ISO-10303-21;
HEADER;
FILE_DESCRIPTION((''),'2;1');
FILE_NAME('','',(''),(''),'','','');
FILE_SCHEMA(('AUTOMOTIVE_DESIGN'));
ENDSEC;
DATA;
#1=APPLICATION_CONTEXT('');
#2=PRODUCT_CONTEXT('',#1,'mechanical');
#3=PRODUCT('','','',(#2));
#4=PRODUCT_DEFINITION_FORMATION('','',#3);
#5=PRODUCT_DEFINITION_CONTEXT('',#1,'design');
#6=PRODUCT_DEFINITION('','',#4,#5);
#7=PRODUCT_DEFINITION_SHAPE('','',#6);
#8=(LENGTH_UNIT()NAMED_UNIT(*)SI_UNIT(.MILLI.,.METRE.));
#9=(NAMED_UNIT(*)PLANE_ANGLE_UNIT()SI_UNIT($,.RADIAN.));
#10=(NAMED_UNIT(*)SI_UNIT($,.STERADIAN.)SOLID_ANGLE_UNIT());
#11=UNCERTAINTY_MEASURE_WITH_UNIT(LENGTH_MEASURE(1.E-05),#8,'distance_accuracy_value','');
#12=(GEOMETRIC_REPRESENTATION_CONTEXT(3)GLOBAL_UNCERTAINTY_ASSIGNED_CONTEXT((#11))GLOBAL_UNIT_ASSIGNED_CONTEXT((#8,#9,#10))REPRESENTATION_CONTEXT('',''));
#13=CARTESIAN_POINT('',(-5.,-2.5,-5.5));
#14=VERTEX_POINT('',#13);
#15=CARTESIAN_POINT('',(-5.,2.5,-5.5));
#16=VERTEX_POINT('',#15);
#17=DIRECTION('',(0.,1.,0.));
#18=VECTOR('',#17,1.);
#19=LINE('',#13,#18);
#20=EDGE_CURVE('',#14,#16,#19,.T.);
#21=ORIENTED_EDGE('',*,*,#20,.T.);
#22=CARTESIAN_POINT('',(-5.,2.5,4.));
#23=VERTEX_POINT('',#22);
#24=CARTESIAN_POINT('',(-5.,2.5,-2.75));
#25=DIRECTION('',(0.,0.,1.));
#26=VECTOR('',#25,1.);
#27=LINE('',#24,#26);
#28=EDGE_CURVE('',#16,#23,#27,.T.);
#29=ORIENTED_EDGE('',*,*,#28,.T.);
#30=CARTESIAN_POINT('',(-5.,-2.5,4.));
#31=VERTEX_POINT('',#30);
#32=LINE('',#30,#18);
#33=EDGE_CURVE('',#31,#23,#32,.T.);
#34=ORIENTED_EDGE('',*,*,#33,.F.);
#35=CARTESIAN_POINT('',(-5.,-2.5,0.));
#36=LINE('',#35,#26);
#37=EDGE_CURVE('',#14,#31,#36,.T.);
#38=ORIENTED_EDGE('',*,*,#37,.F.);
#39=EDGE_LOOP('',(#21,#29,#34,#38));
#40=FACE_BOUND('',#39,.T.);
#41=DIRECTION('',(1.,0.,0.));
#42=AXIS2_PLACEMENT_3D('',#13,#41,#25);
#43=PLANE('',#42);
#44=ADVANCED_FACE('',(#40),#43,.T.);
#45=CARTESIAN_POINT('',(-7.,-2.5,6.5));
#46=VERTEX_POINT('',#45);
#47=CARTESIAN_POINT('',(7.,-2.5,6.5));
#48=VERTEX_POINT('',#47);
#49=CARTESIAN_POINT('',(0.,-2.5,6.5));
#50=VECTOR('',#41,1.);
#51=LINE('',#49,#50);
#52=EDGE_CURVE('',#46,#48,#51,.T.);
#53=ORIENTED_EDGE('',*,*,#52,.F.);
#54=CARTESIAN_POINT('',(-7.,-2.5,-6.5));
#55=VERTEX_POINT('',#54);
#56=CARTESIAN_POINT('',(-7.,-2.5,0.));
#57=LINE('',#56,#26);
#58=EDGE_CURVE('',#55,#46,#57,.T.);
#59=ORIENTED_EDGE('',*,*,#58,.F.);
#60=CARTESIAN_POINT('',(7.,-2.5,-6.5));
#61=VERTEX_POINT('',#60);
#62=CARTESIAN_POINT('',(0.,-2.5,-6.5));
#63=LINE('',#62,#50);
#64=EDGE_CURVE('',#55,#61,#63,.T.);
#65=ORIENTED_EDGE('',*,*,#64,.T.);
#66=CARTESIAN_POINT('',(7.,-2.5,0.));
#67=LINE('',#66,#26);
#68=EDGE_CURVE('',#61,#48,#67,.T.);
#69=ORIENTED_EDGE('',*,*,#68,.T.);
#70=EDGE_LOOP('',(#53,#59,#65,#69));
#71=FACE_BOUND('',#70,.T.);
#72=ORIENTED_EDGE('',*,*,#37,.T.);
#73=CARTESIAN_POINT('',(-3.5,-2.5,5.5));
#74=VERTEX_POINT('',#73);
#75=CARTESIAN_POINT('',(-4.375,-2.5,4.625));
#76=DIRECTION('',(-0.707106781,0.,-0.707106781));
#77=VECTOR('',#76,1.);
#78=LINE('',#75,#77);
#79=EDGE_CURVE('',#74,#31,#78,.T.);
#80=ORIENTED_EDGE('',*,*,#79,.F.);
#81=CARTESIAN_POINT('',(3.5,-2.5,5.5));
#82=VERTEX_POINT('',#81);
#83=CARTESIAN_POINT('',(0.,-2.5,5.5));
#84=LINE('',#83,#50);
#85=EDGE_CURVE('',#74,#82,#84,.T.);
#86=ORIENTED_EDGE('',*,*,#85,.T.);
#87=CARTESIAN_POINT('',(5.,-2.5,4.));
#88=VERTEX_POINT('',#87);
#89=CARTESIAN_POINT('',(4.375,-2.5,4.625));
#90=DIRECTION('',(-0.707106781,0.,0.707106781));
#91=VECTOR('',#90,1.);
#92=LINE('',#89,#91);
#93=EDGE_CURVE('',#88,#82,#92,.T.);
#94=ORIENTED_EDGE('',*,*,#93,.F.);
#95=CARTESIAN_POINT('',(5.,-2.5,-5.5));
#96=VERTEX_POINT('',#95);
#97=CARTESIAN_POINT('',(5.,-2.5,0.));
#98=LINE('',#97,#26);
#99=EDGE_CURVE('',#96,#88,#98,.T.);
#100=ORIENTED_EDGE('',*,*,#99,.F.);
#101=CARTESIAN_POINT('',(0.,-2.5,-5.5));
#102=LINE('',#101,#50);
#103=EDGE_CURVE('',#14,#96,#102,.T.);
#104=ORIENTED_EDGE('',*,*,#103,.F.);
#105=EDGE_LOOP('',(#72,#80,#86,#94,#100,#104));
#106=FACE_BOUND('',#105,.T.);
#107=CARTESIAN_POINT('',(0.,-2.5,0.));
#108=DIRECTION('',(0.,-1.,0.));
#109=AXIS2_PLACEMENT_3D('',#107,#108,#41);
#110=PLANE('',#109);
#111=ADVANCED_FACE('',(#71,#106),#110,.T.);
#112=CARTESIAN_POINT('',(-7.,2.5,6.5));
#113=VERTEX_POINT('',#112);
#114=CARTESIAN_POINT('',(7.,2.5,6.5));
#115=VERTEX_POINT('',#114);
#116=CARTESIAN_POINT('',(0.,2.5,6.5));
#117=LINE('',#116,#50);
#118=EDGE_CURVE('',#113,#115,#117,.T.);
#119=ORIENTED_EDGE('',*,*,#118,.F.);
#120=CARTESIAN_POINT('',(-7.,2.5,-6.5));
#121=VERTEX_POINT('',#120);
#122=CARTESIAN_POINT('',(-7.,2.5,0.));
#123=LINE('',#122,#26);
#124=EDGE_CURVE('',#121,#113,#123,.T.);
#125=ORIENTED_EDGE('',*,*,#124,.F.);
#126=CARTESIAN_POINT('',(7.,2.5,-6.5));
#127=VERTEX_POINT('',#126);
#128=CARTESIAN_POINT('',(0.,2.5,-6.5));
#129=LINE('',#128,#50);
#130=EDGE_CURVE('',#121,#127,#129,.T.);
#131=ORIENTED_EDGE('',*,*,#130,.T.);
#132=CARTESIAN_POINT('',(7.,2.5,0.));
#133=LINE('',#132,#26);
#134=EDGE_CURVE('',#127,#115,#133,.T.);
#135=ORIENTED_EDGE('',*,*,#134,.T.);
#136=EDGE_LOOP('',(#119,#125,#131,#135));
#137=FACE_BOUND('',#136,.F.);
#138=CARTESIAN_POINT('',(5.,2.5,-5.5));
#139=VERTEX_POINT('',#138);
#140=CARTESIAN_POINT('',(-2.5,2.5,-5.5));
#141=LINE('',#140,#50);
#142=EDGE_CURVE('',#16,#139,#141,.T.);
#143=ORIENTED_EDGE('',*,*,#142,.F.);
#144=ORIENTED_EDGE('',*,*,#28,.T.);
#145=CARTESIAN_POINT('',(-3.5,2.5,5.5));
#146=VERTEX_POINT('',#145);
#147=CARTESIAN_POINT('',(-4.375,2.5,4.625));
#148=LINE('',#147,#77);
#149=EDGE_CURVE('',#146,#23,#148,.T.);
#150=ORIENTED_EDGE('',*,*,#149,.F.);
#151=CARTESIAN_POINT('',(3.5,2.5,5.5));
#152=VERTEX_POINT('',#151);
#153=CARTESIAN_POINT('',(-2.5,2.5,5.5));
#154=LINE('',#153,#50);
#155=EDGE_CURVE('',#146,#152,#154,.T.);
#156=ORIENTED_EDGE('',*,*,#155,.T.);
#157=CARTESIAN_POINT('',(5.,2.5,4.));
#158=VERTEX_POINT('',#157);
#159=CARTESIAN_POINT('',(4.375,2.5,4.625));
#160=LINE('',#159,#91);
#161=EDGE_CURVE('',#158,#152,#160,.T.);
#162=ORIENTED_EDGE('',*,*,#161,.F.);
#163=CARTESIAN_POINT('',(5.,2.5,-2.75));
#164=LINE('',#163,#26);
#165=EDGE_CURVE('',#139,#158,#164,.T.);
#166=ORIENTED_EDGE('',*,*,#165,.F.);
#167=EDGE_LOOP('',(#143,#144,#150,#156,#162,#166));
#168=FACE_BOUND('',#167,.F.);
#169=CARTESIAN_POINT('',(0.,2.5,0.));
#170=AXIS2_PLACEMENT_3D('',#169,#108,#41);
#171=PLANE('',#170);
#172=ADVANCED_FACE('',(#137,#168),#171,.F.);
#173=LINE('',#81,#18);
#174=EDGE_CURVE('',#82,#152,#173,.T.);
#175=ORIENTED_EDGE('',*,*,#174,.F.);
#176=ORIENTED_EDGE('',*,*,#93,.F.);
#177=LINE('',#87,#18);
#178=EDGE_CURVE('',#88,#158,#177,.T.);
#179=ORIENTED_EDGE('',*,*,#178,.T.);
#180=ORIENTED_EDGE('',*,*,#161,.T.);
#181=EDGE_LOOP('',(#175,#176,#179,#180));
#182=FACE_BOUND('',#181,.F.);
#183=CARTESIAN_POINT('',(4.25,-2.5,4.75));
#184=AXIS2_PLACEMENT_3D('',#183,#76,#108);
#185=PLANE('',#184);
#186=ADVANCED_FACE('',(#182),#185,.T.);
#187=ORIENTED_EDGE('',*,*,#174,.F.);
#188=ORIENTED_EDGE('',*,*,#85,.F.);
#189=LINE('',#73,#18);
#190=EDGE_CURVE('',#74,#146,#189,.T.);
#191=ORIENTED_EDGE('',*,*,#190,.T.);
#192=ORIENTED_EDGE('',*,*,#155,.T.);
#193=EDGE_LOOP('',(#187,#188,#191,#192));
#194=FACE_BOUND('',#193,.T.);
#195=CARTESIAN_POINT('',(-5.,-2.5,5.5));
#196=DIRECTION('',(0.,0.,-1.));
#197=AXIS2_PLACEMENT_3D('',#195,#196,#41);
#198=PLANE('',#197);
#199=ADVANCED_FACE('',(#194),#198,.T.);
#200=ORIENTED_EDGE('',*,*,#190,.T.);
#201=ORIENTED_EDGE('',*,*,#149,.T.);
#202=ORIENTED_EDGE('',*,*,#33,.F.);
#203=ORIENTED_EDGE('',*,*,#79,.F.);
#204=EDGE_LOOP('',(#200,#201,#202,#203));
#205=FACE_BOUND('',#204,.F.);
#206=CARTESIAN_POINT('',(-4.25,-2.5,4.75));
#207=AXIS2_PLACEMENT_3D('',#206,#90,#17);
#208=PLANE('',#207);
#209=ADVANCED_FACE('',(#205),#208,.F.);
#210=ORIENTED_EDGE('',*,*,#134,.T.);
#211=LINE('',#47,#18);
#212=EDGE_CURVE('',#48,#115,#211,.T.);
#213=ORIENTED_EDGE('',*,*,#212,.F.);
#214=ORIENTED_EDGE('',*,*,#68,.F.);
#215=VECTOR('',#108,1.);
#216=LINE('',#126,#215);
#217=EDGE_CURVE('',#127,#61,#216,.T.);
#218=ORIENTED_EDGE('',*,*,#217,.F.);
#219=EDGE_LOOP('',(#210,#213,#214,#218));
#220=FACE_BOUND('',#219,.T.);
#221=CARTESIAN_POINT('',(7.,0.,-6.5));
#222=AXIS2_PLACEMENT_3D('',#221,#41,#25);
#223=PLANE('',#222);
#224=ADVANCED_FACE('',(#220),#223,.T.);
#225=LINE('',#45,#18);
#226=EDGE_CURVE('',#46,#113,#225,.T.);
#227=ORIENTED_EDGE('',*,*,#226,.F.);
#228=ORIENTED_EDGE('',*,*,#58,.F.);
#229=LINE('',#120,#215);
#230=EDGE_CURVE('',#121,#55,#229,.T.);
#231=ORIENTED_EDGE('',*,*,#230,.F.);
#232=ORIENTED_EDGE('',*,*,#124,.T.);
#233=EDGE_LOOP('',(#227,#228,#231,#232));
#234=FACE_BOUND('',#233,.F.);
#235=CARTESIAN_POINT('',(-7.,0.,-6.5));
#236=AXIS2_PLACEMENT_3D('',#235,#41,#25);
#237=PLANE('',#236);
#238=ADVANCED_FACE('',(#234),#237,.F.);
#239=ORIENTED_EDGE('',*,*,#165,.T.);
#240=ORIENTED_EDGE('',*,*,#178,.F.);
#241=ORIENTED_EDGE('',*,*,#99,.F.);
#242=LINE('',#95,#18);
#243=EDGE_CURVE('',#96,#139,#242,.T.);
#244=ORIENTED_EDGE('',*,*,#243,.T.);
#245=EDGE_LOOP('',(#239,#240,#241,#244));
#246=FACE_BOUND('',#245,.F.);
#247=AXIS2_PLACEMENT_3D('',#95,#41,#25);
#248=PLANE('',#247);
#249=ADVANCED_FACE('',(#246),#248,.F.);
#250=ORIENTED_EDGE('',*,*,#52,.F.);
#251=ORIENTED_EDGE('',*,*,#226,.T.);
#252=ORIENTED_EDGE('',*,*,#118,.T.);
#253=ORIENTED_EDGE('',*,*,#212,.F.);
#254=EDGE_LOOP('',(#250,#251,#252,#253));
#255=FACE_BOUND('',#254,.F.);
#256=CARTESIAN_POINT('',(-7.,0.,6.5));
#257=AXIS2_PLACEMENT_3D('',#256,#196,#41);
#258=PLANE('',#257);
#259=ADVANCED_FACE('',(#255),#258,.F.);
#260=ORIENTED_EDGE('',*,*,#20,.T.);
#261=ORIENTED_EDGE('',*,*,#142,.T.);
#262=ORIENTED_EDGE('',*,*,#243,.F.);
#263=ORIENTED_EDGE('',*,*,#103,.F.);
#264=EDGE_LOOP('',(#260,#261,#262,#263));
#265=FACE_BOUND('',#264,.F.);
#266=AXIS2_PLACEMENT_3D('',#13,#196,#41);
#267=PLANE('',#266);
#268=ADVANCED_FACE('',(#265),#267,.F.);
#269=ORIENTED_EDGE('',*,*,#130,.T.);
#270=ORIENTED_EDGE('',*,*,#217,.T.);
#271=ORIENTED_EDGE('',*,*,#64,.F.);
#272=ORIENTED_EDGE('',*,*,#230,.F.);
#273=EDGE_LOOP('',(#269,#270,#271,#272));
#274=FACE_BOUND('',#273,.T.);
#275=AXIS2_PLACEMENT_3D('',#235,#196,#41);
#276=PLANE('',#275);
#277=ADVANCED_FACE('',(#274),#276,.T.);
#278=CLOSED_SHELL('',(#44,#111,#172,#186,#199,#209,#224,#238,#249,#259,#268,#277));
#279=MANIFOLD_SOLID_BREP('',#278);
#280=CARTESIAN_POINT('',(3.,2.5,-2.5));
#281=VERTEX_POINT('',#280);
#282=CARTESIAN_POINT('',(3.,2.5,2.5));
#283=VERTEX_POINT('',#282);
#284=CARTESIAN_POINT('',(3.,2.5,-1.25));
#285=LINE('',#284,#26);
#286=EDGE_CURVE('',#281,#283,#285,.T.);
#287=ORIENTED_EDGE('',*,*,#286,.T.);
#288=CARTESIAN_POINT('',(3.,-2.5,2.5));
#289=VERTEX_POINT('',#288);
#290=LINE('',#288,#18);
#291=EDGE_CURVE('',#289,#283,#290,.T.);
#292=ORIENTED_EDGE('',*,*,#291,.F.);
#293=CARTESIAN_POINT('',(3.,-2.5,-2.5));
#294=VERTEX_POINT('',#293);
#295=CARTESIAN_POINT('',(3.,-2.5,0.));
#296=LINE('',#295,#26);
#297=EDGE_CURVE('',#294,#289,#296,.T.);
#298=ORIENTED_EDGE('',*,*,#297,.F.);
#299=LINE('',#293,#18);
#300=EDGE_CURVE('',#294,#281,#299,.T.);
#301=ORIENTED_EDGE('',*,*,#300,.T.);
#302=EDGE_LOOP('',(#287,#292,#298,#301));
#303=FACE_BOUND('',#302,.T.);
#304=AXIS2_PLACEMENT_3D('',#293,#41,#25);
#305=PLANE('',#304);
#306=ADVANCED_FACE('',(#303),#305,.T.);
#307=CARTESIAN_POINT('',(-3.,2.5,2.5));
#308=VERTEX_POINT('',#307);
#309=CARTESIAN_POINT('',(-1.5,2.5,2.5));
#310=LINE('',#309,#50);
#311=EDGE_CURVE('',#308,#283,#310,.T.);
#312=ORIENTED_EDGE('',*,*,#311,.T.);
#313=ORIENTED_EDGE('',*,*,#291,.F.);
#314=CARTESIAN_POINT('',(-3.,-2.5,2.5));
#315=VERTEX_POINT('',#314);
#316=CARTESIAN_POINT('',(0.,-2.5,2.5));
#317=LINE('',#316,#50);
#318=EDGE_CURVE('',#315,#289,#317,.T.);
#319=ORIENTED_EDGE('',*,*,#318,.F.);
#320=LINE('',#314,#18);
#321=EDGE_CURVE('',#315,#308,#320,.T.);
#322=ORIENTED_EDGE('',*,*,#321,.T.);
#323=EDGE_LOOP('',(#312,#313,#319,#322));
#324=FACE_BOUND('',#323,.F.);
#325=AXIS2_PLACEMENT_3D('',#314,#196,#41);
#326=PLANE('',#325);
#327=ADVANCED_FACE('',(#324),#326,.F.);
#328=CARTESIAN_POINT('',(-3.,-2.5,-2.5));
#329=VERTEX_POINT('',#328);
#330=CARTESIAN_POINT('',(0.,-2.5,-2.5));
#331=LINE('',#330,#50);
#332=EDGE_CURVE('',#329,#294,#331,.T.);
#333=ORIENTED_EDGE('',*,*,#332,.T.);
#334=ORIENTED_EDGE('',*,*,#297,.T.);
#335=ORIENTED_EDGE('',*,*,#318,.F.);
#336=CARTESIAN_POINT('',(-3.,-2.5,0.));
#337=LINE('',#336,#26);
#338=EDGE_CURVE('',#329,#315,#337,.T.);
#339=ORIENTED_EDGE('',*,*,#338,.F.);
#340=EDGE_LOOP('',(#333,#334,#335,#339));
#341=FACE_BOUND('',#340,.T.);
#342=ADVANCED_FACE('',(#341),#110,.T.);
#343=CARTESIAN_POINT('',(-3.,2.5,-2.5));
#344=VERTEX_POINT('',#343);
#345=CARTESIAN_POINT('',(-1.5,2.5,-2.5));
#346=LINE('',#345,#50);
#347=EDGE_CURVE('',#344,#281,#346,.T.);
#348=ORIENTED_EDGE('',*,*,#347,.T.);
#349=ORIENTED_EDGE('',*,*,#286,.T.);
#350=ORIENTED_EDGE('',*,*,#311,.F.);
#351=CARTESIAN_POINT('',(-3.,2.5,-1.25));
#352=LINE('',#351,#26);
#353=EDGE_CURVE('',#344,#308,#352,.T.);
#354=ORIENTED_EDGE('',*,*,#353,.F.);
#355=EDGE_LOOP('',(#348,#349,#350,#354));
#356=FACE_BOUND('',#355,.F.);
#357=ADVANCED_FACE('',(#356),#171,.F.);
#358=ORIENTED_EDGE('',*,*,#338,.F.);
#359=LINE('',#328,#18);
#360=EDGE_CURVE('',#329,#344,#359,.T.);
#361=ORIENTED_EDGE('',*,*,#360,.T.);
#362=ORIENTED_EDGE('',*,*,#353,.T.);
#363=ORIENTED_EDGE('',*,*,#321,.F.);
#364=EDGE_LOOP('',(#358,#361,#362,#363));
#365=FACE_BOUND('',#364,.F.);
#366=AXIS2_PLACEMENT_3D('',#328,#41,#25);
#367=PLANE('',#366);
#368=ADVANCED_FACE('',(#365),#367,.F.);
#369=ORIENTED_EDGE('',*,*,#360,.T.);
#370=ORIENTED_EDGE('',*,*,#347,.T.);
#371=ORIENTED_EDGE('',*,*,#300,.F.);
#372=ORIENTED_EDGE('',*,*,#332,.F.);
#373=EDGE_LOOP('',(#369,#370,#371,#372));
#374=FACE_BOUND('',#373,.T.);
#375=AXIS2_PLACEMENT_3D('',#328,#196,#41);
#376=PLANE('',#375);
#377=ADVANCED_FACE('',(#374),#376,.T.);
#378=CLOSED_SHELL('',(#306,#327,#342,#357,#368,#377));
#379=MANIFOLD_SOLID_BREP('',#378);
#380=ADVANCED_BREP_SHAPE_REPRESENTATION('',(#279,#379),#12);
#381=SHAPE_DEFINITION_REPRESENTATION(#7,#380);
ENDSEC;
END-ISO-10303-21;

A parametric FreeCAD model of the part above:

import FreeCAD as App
import Part
import Sketcher

V = App.Vector
Q = App.Units.Quantity


def edges_at(feature, points):
    """Names of the edges that pass closest to the given points."""
    edges = feature.Shape.Edges
    near = lambda p: min(range(len(edges)), key=lambda i: edges[i].distToShape(Part.Vertex(*p))[0])
    return sorted({f"Edge{near(p) + 1}" for p in points})


def add_polygon(sketch, points):
    """Adds a closed chain of lines whose ends are joined by coincident constraints."""
    first, n = sketch.GeometryCount, len(points)
    for a, b in zip(points, points[1:] + points[:1]):
        sketch.addGeometry(Part.LineSegment(App.Vector(*a, 0), App.Vector(*b, 0)), False)
    for i in range(n):
        sketch.addConstraint(Sketcher.Constraint("Coincident", first + i, 2, first + (i + 1) % n, 1))

doc = App.newDocument("Part")
params = doc.addObject("Spreadsheet::Sheet", "Params")
for row, (alias, value) in enumerate([
    ("sketch1_width", "14 mm"),
    ("sketch1_height", "13 mm"),
    ("pad1_length", "5 mm"),
    ("sketch2_width", "10 mm"),
    ("sketch2_width2", "6 mm"),
    ("sketch2_height", "11 mm"),
    ("sketch2_height2", "5 mm"),
    ("chamfer_size", "1.5 mm"),
], start=1):
    params.set(f"A{row}", alias)
    params.set(f"B{row}", "=" + value)
    params.setAlias(f"B{row}", alias)

body = doc.addObject("PartDesign::Body", "Body")
body.AllowCompound = True

# Sketch on XZ plane
sketch1 = body.newObject("Sketcher::SketchObject", "Sketch")
sketch1.AttachmentSupport = (doc.getObject("XZ_Plane"), [""])
sketch1.MapMode = "FlatFace"
add_polygon(sketch1, [(-7, 6), (-7, -6), (7, -6), (7, 6)])  # lines 0-3
sketch1.addConstraint(Sketcher.Constraint("Vertical", 0))
sketch1.addConstraint(Sketcher.Constraint("Horizontal", 1))
sketch1.addConstraint(Sketcher.Constraint("Vertical", 2))
sketch1.addConstraint(Sketcher.Constraint("Horizontal", 3))
sketch1.addConstraint(Sketcher.Constraint("Symmetric", 0, 2, 2, 2, -1, 1))
sketch1.addConstraint(Sketcher.Constraint("DistanceX", 1, 1, 1, 2, Q("14 mm")))
sketch1.addConstraint(Sketcher.Constraint("DistanceY", 0, 2, 0, 1, Q("13 mm")))
sketch1.setExpression("Constraints[9]", "Params.sketch1_width")
sketch1.setExpression("Constraints[10]", "Params.sketch1_height")
pad1 = body.newObject("PartDesign::Pad", "Pad")
pad1.Profile = sketch1
pad1.setExpression("Length", "Params.pad1_length")
pad1.Midplane = True

# Sketch on XZ plane
sketch2 = body.newObject("Sketcher::SketchObject", "Sketch001")
sketch2.AttachmentSupport = (doc.getObject("XZ_Plane"), [""])
sketch2.MapMode = "FlatFace"
sketch2.AttachmentOffset = App.Placement(V(0, 0, 2.5), App.Rotation())
add_polygon(sketch2, [(-5, 6), (-5, -6), (5, -6), (5, 6)])  # lines 0-3
add_polygon(sketch2, [(3, -2), (-3, -2), (-3, 2), (3, 2)])  # lines 4-7
sketch2.addConstraint(Sketcher.Constraint("Vertical", 0))
sketch2.addConstraint(Sketcher.Constraint("Horizontal", 1))
sketch2.addConstraint(Sketcher.Constraint("Vertical", 2))
sketch2.addConstraint(Sketcher.Constraint("Horizontal", 3))
sketch2.addConstraint(Sketcher.Constraint("Horizontal", 4))
sketch2.addConstraint(Sketcher.Constraint("Vertical", 5))
sketch2.addConstraint(Sketcher.Constraint("Horizontal", 6))
sketch2.addConstraint(Sketcher.Constraint("Vertical", 7))
sketch2.addConstraint(Sketcher.Constraint("Symmetric", 0, 2, 2, 2, -1, 1))
sketch2.addConstraint(Sketcher.Constraint("Symmetric", 4, 2, 6, 2, -1, 1))
sketch2.addConstraint(Sketcher.Constraint("DistanceX", 1, 1, 1, 2, Q("10 mm")))
sketch2.addConstraint(Sketcher.Constraint("DistanceX", 4, 2, 4, 1, Q("6 mm")))
sketch2.addConstraint(Sketcher.Constraint("DistanceY", 0, 2, 0, 1, Q("11 mm")))
sketch2.addConstraint(Sketcher.Constraint("DistanceY", 5, 1, 5, 2, Q("5 mm")))
sketch2.setExpression("Constraints[18]", "Params.sketch2_width")
sketch2.setExpression("Constraints[19]", "Params.sketch2_width2")
sketch2.setExpression("Constraints[20]", "Params.sketch2_height")
sketch2.setExpression("Constraints[21]", "Params.sketch2_height2")
pocket1 = body.newObject("PartDesign::Pocket", "Pocket")
pocket1.Profile = sketch2
pocket1.Type = "ThroughAll"
doc.recompute()

chamfer = body.newObject("PartDesign::Chamfer", "Chamfer")
chamfer.Base = (pocket1, edges_at(pocket1, [(-5, 0, 5.5), (5, 0, 5.5)]))
chamfer.setExpression("Size", "Params.chamfer_size")

doc.recompute()
